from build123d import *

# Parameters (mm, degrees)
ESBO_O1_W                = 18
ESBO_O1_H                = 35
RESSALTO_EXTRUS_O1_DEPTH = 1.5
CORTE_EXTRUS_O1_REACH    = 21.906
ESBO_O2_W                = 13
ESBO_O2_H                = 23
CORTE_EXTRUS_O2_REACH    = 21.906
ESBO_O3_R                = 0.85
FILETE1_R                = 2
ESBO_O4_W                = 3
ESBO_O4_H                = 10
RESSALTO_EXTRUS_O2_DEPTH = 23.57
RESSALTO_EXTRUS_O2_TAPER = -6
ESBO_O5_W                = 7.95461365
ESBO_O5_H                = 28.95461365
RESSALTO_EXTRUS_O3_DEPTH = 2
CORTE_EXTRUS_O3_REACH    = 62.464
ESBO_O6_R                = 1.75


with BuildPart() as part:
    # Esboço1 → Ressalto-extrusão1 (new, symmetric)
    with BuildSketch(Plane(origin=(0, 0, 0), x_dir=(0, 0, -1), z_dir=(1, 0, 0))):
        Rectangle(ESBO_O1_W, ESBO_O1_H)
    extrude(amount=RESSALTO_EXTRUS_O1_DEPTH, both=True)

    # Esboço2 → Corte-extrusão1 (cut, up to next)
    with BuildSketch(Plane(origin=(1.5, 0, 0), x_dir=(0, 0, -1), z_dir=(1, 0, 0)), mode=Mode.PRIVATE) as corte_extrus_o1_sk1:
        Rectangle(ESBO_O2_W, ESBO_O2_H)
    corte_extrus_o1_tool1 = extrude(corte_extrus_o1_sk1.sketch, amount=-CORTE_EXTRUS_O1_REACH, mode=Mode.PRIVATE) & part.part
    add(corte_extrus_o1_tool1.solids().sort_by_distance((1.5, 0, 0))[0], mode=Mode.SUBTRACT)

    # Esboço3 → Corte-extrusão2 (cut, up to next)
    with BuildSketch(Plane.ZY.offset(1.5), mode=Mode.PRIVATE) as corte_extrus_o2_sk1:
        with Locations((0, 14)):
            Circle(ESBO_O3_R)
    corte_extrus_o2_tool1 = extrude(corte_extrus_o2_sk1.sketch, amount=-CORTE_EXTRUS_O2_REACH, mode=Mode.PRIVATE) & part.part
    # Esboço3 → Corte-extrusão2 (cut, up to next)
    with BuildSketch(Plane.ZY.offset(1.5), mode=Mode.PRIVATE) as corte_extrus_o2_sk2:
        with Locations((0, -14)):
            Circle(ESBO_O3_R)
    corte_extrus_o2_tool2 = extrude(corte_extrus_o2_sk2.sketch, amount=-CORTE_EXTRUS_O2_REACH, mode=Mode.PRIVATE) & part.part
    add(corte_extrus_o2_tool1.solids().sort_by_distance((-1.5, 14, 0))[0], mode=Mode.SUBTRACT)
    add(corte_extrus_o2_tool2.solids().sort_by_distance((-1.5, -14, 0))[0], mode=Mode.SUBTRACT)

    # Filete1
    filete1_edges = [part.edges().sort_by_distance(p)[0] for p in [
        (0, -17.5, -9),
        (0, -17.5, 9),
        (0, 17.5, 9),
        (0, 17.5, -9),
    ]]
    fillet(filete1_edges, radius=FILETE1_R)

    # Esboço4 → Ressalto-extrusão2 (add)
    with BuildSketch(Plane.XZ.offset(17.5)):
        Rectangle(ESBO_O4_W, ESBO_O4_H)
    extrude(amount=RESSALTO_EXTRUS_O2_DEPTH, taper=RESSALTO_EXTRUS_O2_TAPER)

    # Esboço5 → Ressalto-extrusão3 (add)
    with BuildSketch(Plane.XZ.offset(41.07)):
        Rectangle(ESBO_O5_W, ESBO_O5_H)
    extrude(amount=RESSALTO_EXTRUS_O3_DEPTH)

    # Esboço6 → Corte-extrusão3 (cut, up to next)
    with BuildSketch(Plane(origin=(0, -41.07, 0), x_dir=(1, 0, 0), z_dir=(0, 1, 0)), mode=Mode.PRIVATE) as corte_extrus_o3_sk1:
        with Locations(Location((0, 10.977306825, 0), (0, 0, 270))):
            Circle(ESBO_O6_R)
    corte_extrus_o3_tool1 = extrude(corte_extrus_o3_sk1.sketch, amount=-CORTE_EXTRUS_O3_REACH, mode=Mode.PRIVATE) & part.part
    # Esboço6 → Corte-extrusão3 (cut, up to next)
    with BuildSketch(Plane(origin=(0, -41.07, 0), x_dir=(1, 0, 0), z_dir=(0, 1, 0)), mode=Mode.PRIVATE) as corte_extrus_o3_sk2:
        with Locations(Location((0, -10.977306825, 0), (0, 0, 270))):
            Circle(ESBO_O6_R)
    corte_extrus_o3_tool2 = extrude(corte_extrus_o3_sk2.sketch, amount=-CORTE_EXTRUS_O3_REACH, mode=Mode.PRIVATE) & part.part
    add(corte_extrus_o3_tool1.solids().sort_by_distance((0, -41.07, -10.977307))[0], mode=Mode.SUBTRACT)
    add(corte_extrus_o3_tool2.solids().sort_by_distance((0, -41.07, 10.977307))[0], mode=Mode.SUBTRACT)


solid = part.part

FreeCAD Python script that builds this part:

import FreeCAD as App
import Part
import Sketcher
Q = App.Units.Quantity


def edges_at(feature, points):
    """Names of the edges that pass closest to the given points."""
    edges = feature.Shape.Edges
    near = lambda p: min(range(len(edges)), key=lambda i: edges[i].distToShape(Part.Vertex(*p))[0])
    return sorted({f"Edge{near(p) + 1}" for p in points})

doc = App.newDocument("Part")
params = doc.addObject("Spreadsheet::Sheet", "Params")
for row, (alias, value) in enumerate([
    ("sketch1_width", "35 mm"),
    ("sketch1_height", "18 mm"),
    ("pad1_length", "3 mm"),
    ("sketch2_width", "23 mm"),
    ("sketch2_height", "13 mm"),
    ("sketch3_diameter", "1.7 mm"),
    ("sketch4_diameter", "1.7 mm"),
    ("fillet_radius", "2 mm"),
    ("sketch5_width", "3 mm"),
    ("sketch5_height", "10 mm"),
    ("pad2_length", "23.57 mm"),
    ("pad2_taper", "6 deg"),
    ("pad3_length", "2 mm"),
    ("sketch7_diameter", "3.5 mm"),
    ("sketch8_diameter", "3.5 mm"),
], start=1):
    params.set(f"A{row}", alias)
    params.set(f"B{row}", "=" + value)
    params.setAlias(f"B{row}", alias)

body = doc.addObject("PartDesign::Body", "Body")

# Sketch on YZ plane
sketch1 = doc.addObject("Sketcher::SketchObject", "Sketch")
body.addObject(sketch1)
sketch1.AttachmentSupport = (doc.YZ_Plane, [""])
sketch1.MapMode = "FlatFace"
sketch1.addGeometry(Part.LineSegment(App.Vector(17.5, 9, 0), App.Vector(-17.5, 9, 0)), False)
sketch1.addGeometry(Part.LineSegment(App.Vector(-17.5, 9, 0), App.Vector(-17.5, -9, 0)), False)
sketch1.addGeometry(Part.LineSegment(App.Vector(-17.5, -9, 0), App.Vector(17.5, -9, 0)), False)
sketch1.addGeometry(Part.LineSegment(App.Vector(17.5, -9, 0), App.Vector(17.5, 9, 0)), False)
sketch1.addConstraint(Sketcher.Constraint("Coincident", 0, 2, 1, 1))
sketch1.addConstraint(Sketcher.Constraint("Coincident", 1, 2, 2, 1))
sketch1.addConstraint(Sketcher.Constraint("Coincident", 2, 2, 3, 1))
sketch1.addConstraint(Sketcher.Constraint("Coincident", 3, 2, 0, 1))
sketch1.addConstraint(Sketcher.Constraint("Horizontal", 0))
sketch1.addConstraint(Sketcher.Constraint("Vertical", 1))
sketch1.addConstraint(Sketcher.Constraint("Horizontal", 2))
sketch1.addConstraint(Sketcher.Constraint("Vertical", 3))
sketch1.addConstraint(Sketcher.Constraint("Symmetric", 0, 2, 2, 2, -1, 1))
sketch1.addConstraint(Sketcher.Constraint("DistanceX", 0, 2, 0, 1, Q("35 mm")))
sketch1.addConstraint(Sketcher.Constraint("DistanceY", 1, 2, 1, 1, Q("18 mm")))
sketch1.setExpression("Constraints[9]", "Params.sketch1_width")
sketch1.setExpression("Constraints[10]", "Params.sketch1_height")
pad1 = doc.addObject("PartDesign::Pad", "Pad")
body.addObject(pad1)
pad1.Profile = sketch1
pad1.setExpression("Length", "Params.pad1_length")
pad1.Midplane = True

# Sketch on YZ plane
sketch2 = doc.addObject("Sketcher::SketchObject", "Sketch001")
body.addObject(sketch2)
sketch2.AttachmentSupport = (doc.YZ_Plane, [""])
sketch2.MapMode = "FlatFace"
sketch2.AttachmentOffset = App.Placement(App.Vector(0, 0, 1.5), App.Rotation())
sketch2.addGeometry(Part.LineSegment(App.Vector(11.5, 6.5, 0), App.Vector(-11.5, 6.5, 0)), False)
sketch2.addGeometry(Part.LineSegment(App.Vector(-11.5, 6.5, 0), App.Vector(-11.5, -6.5, 0)), False)
sketch2.addGeometry(Part.LineSegment(App.Vector(-11.5, -6.5, 0), App.Vector(11.5, -6.5, 0)), False)
sketch2.addGeometry(Part.LineSegment(App.Vector(11.5, -6.5, 0), App.Vector(11.5, 6.5, 0)), False)
sketch2.addConstraint(Sketcher.Constraint("Coincident", 0, 2, 1, 1))
sketch2.addConstraint(Sketcher.Constraint("Coincident", 1, 2, 2, 1))
sketch2.addConstraint(Sketcher.Constraint("Coincident", 2, 2, 3, 1))
sketch2.addConstraint(Sketcher.Constraint("Coincident", 3, 2, 0, 1))
sketch2.addConstraint(Sketcher.Constraint("Horizontal", 0))
sketch2.addConstraint(Sketcher.Constraint("Vertical", 1))
sketch2.addConstraint(Sketcher.Constraint("Horizontal", 2))
sketch2.addConstraint(Sketcher.Constraint("Vertical", 3))
sketch2.addConstraint(Sketcher.Constraint("Symmetric", 0, 2, 2, 2, -1, 1))
sketch2.addConstraint(Sketcher.Constraint("DistanceX", 0, 2, 0, 1, Q("23 mm")))
sketch2.addConstraint(Sketcher.Constraint("DistanceY", 1, 2, 1, 1, Q("13 mm")))
sketch2.setExpression("Constraints[9]", "Params.sketch2_width")
sketch2.setExpression("Constraints[10]", "Params.sketch2_height")
pocket1 = doc.addObject("PartDesign::Pocket", "Pocket")
body.addObject(pocket1)
pocket1.Profile = sketch2
pocket1.Type = "UpToFirst"

# Sketch on YZ plane
sketch3 = doc.addObject("Sketcher::SketchObject", "Sketch002")
body.addObject(sketch3)
sketch3.AttachmentSupport = (doc.YZ_Plane, [""])
sketch3.MapMode = "FlatFace"
sketch3.AttachmentOffset = App.Placement(App.Vector(0, 0, -1.5), App.Rotation())
sketch3.addGeometry(Part.Circle(App.Vector(14, 0, 0), App.Vector(0, 0, 1), 0.85), False)
sketch3.addConstraint(Sketcher.Constraint("PointOnObject", 0, 3, -1))
sketch3.addConstraint(Sketcher.Constraint("Diameter", 0, Q("1.7 mm")))
sketch3.addConstraint(Sketcher.Constraint("DistanceX", -1, 1, 0, 3, Q("14 mm")))
sketch3.setExpression("Constraints[1]", "Params.sketch3_diameter")
pocket2 = doc.addObject("PartDesign::Pocket", "Pocket001")
body.addObject(pocket2)
pocket2.Profile = sketch3
pocket2.Type = "UpToFirst"
pocket2.Reversed = True

# Sketch on YZ plane
sketch4 = doc.addObject("Sketcher::SketchObject", "Sketch003")
body.addObject(sketch4)
sketch4.AttachmentSupport = (doc.YZ_Plane, [""])
sketch4.MapMode = "FlatFace"
sketch4.AttachmentOffset = App.Placement(App.Vector(0, 0, -1.5), App.Rotation())
sketch4.addGeometry(Part.Circle(App.Vector(-14, 0, 0), App.Vector(0, 0, 1), 0.85), False)
sketch4.addConstraint(Sketcher.Constraint("PointOnObject", 0, 3, -1))
sketch4.addConstraint(Sketcher.Constraint("Diameter", 0, Q("1.7 mm")))
sketch4.addConstraint(Sketcher.Constraint("DistanceX", 0, 3, -1, 1, Q("14 mm")))
sketch4.setExpression("Constraints[1]", "Params.sketch4_diameter")
pocket3 = doc.addObject("PartDesign::Pocket", "Pocket002")
body.addObject(pocket3)
pocket3.Profile = sketch4
pocket3.Type = "UpToFirst"
pocket3.Reversed = True
doc.recompute()

fillet = doc.addObject("PartDesign::Fillet", "Fillet")
body.addObject(fillet)
fillet.Base = (pocket3, edges_at(pocket3, [
    (0, -17.5, -9),
    (0, -17.5, 9),
    (0, 17.5, 9),
    (0, 17.5, -9),
]))
fillet.setExpression("Radius", "Params.fillet_radius")

# Sketch on XZ plane
sketch5 = doc.addObject("Sketcher::SketchObject", "Sketch004")
body.addObject(sketch5)
sketch5.AttachmentSupport = (doc.XZ_Plane, [""])
sketch5.MapMode = "FlatFace"
sketch5.AttachmentOffset = App.Placement(App.Vector(0, 0, 17.5), App.Rotation())
sketch5.addGeometry(Part.LineSegment(App.Vector(-1.5, 5, 0), App.Vector(-1.5, -5, 0)), False)
sketch5.addGeometry(Part.LineSegment(App.Vector(-1.5, -5, 0), App.Vector(1.5, -5, 0)), False)
sketch5.addGeometry(Part.LineSegment(App.Vector(1.5, -5, 0), App.Vector(1.5, 5, 0)), False)
sketch5.addGeometry(Part.LineSegment(App.Vector(1.5, 5, 0), App.Vector(-1.5, 5, 0)), False)
sketch5.addConstraint(Sketcher.Constraint("Coincident", 0, 2, 1, 1))
sketch5.addConstraint(Sketcher.Constraint("Coincident", 1, 2, 2, 1))
sketch5.addConstraint(Sketcher.Constraint("Coincident", 2, 2, 3, 1))
sketch5.addConstraint(Sketcher.Constraint("Coincident", 3, 2, 0, 1))
sketch5.addConstraint(Sketcher.Constraint("Vertical", 0))
sketch5.addConstraint(Sketcher.Constraint("Horizontal", 1))
sketch5.addConstraint(Sketcher.Constraint("Vertical", 2))
sketch5.addConstraint(Sketcher.Constraint("Horizontal", 3))
sketch5.addConstraint(Sketcher.Constraint("Symmetric", 0, 2, 2, 2, -1, 1))
sketch5.addConstraint(Sketcher.Constraint("DistanceX", 1, 1, 1, 2, Q("3 mm")))
sketch5.addConstraint(Sketcher.Constraint("DistanceY", 0, 2, 0, 1, Q("10 mm")))
sketch5.setExpression("Constraints[9]", "Params.sketch5_width")
sketch5.setExpression("Constraints[10]", "Params.sketch5_height")
pad2 = doc.addObject("PartDesign::Pad", "Pad001")
body.addObject(pad2)
pad2.Profile = sketch5
pad2.setExpression("Length", "Params.pad2_length")
pad2.setExpression("TaperAngle", "Params.pad2_taper")

# Sketch on XZ plane
sketch6 = doc.addObject("Sketcher::SketchObject", "Sketch005")
body.addObject(sketch6)
sketch6.AttachmentSupport = (doc.XZ_Plane, [""])
sketch6.MapMode = "FlatFace"
sketch6.AttachmentOffset = App.Placement(App.Vector(0, 0, 41.07), App.Rotation())
sketch6.addGeometry(Part.LineSegment(App.Vector(-3.977307, 14.477307, 0), App.Vector(-3.977307, -14.477307, 0)), False)
sketch6.addGeometry(Part.LineSegment(App.Vector(-3.977307, -14.477307, 0), App.Vector(3.977307, -14.477307, 0)), False)
sketch6.addGeometry(Part.LineSegment(App.Vector(3.977307, -14.477307, 0), App.Vector(3.977307, 14.477307, 0)), False)
sketch6.addGeometry(Part.LineSegment(App.Vector(3.977307, 14.477307, 0), App.Vector(-3.977307, 14.477307, 0)), False)
sketch6.addConstraint(Sketcher.Constraint("Coincident", 0, 2, 1, 1))
sketch6.addConstraint(Sketcher.Constraint("Coincident", 1, 2, 2, 1))
sketch6.addConstraint(Sketcher.Constraint("Coincident", 2, 2, 3, 1))
sketch6.addConstraint(Sketcher.Constraint("Coincident", 3, 2, 0, 1))
sketch6.addConstraint(Sketcher.Constraint("Vertical", 0))
sketch6.addConstraint(Sketcher.Constraint("Horizontal", 1))
sketch6.addConstraint(Sketcher.Constraint("Vertical", 2))
sketch6.addConstraint(Sketcher.Constraint("Horizontal", 3))
sketch6.addConstraint(Sketcher.Constraint("Symmetric", 0, 2, 2, 2, -1, 1))
sketch6.addConstraint(Sketcher.Constraint("DistanceX", 1, 1, 1, 2, Q("7.954614 mm")))
sketch6.addConstraint(Sketcher.Constraint("DistanceY", 0, 2, 0, 1, Q("28.954614 mm")))
pad3 = doc.addObject("PartDesign::Pad", "Pad002")
body.addObject(pad3)
pad3.Profile = sketch6
pad3.setExpression("Length", "Params.pad3_length")

# Sketch on XZ plane
sketch7 = doc.addObject("Sketcher::SketchObject", "Sketch006")
body.addObject(sketch7)
sketch7.AttachmentSupport = (doc.XZ_Plane, [""])
sketch7.MapMode = "FlatFace"
sketch7.AttachmentOffset = App.Placement(App.Vector(0, 0, 41.07), App.Rotation())
sketch7.addGeometry(Part.Circle(App.Vector(0, -10.977307, 0), App.Vector(0, 0, 1), 1.75), False)
sketch7.addConstraint(Sketcher.Constraint("PointOnObject", 0, 3, -2))
sketch7.addConstraint(Sketcher.Constraint("Diameter", 0, Q("3.5 mm")))
sketch7.addConstraint(Sketcher.Constraint("DistanceY", 0, 3, -1, 1, Q("10.977307 mm")))
sketch7.setExpression("Constraints[1]", "Params.sketch7_diameter")
pocket4 = doc.addObject("PartDesign::Pocket", "Pocket003")
body.addObject(pocket4)
pocket4.Profile = sketch7
pocket4.Type = "UpToFirst"
pocket4.Reversed = True

# Sketch on XZ plane
sketch8 = doc.addObject("Sketcher::SketchObject", "Sketch007")
body.addObject(sketch8)
sketch8.AttachmentSupport = (doc.XZ_Plane, [""])
sketch8.MapMode = "FlatFace"
sketch8.AttachmentOffset = App.Placement(App.Vector(0, 0, 41.07), App.Rotation())
sketch8.addGeometry(Part.Circle(App.Vector(0, 10.977307, 0), App.Vector(0, 0, 1), 1.75), False)
sketch8.addConstraint(Sketcher.Constraint("PointOnObject", 0, 3, -2))
sketch8.addConstraint(Sketcher.Constraint("Diameter", 0, Q("3.5 mm")))
sketch8.addConstraint(Sketcher.Constraint("DistanceY", -1, 1, 0, 3, Q("10.977307 mm")))
sketch8.setExpression("Constraints[1]", "Params.sketch8_diameter")
pocket5 = doc.addObject("PartDesign::Pocket", "Pocket004")
body.addObject(pocket5)
pocket5.Profile = sketch8
pocket5.Type = "UpToFirst"
pocket5.Reversed = True

doc.recompute()
